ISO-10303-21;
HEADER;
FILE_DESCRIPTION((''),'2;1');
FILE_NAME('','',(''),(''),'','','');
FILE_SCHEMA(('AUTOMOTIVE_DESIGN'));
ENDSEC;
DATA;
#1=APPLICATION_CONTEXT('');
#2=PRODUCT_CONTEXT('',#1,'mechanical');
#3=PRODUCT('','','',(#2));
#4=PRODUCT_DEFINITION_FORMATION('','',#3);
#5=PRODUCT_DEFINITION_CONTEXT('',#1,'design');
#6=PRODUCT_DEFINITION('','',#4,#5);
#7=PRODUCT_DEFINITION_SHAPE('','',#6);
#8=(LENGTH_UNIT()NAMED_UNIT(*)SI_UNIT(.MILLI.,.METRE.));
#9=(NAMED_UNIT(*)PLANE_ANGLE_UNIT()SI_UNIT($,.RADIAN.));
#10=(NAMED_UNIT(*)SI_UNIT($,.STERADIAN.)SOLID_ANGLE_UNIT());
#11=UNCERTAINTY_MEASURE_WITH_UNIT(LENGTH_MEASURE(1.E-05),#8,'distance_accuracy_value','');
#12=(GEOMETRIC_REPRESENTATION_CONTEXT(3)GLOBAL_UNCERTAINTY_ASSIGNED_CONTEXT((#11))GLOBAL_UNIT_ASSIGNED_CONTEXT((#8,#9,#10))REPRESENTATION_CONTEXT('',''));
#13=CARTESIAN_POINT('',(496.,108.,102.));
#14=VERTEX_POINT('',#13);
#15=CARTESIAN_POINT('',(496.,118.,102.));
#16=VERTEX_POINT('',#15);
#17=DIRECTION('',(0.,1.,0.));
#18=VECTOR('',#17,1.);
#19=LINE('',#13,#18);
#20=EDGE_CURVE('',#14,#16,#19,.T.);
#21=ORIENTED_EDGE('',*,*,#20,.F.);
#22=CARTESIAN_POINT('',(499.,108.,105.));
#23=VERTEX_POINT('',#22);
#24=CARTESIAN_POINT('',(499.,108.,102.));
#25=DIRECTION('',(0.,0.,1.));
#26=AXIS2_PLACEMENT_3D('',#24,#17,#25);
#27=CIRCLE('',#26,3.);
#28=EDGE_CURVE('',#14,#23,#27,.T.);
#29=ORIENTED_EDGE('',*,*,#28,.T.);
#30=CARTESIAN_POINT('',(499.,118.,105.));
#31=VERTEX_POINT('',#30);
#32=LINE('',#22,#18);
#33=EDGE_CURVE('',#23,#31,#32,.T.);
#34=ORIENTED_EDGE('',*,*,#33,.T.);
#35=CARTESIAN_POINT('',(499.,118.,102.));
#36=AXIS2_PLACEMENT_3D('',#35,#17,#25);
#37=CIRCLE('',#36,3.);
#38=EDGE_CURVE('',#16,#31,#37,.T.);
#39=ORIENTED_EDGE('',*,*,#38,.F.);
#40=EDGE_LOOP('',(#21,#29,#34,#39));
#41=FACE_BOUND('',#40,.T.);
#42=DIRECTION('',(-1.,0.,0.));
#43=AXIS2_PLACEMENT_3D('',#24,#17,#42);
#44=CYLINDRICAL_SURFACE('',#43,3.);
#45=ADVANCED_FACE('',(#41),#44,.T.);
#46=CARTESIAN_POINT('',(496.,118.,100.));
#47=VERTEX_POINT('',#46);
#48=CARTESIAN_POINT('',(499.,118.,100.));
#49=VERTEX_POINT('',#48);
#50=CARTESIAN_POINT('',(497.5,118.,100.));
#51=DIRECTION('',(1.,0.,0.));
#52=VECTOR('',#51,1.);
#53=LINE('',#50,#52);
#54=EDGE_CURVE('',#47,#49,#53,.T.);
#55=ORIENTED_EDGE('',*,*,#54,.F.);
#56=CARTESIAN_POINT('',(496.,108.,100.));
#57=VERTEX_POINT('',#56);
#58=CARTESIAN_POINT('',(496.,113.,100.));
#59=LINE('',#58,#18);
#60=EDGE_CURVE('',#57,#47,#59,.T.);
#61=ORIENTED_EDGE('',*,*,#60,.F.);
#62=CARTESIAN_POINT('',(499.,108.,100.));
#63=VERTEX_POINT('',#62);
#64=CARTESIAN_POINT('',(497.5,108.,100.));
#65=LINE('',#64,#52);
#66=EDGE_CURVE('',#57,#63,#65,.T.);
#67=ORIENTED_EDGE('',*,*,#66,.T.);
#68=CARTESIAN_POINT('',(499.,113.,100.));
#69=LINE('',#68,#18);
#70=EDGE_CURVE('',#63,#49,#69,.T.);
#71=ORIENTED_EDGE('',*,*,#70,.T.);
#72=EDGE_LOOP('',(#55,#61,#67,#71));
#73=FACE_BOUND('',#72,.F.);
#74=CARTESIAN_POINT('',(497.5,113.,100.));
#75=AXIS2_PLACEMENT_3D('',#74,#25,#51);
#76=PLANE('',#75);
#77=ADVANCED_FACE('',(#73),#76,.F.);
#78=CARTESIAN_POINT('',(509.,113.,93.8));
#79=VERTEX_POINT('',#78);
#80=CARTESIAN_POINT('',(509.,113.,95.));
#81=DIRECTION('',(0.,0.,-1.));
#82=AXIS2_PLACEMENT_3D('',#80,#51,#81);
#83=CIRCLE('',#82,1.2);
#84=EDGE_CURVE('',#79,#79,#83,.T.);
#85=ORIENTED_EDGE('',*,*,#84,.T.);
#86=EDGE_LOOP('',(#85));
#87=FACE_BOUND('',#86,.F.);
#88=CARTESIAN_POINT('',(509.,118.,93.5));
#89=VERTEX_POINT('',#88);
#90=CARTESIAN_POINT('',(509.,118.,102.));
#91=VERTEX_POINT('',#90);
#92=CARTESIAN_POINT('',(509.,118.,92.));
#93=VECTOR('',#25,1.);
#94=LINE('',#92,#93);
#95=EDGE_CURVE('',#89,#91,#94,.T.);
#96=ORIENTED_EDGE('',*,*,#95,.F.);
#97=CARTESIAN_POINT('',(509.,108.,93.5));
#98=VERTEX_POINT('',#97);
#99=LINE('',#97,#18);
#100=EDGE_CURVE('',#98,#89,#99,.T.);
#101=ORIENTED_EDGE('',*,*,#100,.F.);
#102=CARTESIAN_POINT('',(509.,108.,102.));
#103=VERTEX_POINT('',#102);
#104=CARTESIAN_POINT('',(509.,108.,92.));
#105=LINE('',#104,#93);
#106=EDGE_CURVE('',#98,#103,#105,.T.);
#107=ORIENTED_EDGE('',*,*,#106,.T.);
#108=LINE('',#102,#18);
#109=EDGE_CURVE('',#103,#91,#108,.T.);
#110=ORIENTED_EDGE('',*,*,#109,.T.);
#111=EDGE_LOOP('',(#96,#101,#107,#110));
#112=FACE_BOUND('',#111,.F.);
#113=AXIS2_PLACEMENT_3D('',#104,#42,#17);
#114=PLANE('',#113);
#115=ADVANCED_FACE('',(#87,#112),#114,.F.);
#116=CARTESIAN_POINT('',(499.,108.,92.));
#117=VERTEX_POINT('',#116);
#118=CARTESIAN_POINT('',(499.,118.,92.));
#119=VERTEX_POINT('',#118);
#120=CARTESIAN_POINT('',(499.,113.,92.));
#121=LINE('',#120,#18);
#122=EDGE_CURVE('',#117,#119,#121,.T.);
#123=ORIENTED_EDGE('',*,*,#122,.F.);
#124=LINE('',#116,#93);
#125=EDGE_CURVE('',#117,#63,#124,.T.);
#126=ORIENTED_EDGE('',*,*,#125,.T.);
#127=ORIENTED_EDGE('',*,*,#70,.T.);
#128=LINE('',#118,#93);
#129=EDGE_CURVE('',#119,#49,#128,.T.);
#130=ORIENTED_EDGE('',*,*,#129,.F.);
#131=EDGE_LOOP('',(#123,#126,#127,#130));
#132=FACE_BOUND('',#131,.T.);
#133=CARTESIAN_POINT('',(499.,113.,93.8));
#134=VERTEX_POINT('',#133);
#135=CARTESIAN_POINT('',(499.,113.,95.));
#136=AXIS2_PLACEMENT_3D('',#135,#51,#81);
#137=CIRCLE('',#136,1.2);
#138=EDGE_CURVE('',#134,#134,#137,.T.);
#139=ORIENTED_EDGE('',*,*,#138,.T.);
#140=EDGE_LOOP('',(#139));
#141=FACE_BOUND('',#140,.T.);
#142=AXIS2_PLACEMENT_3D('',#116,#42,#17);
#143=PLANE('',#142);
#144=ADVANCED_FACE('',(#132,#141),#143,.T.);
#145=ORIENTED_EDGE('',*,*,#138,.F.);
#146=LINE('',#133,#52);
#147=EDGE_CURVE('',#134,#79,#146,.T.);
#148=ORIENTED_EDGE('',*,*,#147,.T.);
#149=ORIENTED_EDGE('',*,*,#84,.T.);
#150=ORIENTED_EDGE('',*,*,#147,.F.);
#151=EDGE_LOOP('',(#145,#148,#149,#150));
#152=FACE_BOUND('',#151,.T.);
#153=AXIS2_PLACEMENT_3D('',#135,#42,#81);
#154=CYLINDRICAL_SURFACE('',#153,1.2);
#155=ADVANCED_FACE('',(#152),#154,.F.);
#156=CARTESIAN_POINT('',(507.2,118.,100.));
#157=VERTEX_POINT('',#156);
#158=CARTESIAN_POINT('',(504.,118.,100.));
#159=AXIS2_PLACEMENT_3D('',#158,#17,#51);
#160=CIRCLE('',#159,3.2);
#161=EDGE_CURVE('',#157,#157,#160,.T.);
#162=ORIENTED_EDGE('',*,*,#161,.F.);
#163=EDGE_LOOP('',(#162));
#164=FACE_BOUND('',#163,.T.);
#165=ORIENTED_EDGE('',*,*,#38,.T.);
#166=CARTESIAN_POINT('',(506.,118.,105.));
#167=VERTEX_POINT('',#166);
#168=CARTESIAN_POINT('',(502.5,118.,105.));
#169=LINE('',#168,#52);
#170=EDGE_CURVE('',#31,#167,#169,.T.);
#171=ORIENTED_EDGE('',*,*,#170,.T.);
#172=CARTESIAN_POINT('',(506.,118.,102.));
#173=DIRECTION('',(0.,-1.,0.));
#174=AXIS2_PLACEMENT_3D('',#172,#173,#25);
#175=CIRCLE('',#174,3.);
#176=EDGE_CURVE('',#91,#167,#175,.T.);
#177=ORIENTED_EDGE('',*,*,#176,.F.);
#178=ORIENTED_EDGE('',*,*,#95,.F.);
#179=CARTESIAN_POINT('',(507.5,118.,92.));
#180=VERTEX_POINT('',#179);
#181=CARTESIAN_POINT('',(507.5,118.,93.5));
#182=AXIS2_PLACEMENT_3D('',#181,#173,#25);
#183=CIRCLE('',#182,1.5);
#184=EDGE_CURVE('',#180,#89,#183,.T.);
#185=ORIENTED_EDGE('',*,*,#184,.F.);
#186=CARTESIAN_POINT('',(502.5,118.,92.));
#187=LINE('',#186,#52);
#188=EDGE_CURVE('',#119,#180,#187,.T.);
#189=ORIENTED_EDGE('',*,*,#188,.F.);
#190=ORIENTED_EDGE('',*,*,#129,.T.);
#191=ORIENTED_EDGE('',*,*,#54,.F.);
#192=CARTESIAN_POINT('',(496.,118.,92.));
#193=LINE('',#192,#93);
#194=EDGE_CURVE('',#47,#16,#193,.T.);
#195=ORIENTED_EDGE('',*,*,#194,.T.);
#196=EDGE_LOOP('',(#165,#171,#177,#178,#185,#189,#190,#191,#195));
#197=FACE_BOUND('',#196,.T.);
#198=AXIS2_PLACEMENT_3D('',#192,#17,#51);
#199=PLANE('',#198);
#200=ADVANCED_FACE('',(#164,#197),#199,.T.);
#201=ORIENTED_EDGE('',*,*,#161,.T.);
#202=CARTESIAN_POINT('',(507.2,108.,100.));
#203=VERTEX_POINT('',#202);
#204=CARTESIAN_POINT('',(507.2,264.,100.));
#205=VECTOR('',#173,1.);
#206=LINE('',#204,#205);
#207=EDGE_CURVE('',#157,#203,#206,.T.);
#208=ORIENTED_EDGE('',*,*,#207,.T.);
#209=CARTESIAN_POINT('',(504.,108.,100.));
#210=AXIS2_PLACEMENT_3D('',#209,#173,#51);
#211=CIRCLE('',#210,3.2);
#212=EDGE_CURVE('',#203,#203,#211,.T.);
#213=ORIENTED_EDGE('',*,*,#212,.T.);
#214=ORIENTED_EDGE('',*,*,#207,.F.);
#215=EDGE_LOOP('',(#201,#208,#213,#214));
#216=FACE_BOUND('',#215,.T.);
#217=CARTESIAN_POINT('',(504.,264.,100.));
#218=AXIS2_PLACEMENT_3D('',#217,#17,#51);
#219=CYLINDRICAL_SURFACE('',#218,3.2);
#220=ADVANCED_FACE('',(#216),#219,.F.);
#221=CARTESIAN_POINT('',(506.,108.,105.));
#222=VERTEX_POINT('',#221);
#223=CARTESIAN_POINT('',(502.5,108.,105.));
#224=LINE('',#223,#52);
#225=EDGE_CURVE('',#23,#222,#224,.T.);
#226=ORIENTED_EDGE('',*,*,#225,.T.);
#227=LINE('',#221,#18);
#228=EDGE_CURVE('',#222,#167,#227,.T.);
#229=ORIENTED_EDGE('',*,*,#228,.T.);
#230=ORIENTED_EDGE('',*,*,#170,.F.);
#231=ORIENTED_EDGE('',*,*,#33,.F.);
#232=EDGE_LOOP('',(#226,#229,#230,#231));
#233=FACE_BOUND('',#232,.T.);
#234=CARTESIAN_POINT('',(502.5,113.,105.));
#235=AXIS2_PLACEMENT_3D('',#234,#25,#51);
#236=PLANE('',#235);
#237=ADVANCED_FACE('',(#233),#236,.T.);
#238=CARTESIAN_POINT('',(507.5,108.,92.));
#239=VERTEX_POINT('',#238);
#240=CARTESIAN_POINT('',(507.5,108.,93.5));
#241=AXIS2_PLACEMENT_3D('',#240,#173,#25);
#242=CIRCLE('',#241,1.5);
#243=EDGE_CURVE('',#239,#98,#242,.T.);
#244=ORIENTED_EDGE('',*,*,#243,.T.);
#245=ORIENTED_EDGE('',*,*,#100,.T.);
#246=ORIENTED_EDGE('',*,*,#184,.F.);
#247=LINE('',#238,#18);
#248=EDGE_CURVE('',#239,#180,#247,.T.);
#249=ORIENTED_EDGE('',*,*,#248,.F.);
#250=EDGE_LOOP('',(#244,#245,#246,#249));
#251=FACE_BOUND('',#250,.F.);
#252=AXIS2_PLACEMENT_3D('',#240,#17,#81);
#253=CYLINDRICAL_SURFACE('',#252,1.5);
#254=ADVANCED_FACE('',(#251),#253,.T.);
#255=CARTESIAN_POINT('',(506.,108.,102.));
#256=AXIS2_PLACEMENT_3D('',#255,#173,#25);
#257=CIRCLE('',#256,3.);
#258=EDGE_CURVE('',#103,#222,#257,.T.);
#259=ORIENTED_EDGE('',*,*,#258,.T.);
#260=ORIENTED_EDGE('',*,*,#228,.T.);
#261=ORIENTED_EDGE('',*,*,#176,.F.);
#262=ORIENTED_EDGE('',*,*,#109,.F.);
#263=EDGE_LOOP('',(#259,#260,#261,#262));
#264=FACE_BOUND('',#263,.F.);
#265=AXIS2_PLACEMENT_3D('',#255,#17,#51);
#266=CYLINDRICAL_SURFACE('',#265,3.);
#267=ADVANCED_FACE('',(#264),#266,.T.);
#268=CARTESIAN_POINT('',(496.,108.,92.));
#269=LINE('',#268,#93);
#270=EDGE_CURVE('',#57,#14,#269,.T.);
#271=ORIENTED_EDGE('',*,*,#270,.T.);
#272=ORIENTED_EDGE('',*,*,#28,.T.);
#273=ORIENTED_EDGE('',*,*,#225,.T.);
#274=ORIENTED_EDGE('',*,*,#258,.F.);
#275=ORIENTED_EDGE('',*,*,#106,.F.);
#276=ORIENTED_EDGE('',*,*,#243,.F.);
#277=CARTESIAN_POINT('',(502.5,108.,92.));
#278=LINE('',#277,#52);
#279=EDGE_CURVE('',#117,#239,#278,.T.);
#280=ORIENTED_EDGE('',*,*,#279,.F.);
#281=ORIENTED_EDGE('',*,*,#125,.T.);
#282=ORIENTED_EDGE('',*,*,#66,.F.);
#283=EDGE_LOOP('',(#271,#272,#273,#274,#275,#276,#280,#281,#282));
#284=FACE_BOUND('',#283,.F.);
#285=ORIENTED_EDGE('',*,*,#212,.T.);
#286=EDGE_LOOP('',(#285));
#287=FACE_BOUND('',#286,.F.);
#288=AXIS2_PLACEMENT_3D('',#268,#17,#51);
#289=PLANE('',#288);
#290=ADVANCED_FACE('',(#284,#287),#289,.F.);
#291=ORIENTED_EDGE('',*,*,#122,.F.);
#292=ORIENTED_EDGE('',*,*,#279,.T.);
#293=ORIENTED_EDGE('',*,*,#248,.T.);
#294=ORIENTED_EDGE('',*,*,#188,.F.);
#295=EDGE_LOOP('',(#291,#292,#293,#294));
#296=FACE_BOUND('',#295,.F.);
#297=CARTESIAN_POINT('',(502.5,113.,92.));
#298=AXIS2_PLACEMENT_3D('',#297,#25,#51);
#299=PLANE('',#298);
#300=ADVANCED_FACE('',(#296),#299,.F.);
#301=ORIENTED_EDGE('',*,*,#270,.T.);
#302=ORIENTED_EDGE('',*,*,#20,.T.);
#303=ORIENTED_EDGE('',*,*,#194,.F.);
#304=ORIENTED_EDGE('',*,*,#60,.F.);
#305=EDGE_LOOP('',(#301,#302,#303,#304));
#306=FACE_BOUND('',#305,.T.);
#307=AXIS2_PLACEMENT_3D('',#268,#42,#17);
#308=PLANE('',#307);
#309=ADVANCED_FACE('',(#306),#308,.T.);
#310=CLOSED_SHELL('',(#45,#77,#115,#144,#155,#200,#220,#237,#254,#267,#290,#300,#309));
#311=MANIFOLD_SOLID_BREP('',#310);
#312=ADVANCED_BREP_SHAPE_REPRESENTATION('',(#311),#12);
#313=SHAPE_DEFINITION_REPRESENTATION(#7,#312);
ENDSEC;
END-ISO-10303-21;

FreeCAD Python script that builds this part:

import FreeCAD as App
import Part
import Sketcher
Q = App.Units.Quantity


def edges_at(feature, points):
    """Names of the edges that pass closest to the given points."""
    edges = feature.Shape.Edges
    near = lambda p: min(range(len(edges)), key=lambda i: edges[i].distToShape(Part.Vertex(*p))[0])
    return sorted({f"Edge{near(p) + 1}" for p in points})


def add_polygon(sketch, points):
    """Adds a closed chain of lines whose ends are joined by coincident constraints."""
    first, n = sketch.GeometryCount, len(points)
    for a, b in zip(points, points[1:] + points[:1]):
        sketch.addGeometry(Part.LineSegment(App.Vector(*a, 0), App.Vector(*b, 0)), False)
    for i in range(n):
        sketch.addConstraint(Sketcher.Constraint("Coincident", first + i, 2, first + (i + 1) % n, 1))

doc = App.newDocument("Part")
body = doc.addObject("PartDesign::Body", "Body")

sketch1 = body.newObject("Sketcher::SketchObject", "Sketch")
sketch1.AttachmentSupport = (doc.getObject("XY_Plane"), [""])
sketch1.MapMode = "FlatFace"
sketch1.addGeometry(Part.Circle(App.Vector(0, 0, 0), App.Vector(0, 0, 1), 3.2), False)
sketch1.addConstraint(Sketcher.Constraint("Coincident", 0, 3, -1, 1))
sketch1.addConstraint(Sketcher.Constraint("Diameter", 0, Q("6.4 mm")))
pad1 = body.newObject("PartDesign::Pad", "Pad")
pad1.Profile = sketch1
pad1.Length = 156
body2 = doc.addObject("PartDesign::Body", "Body001")
doc.recompute()

body.Placement = App.Placement(App.Vector(0, 0, 0), App.Rotation(App.Vector(1, 0, 0), 90))
boolean = body2.newObject("PartDesign::Boolean", "Boolean")
boolean.Type = "Fuse"
boolean.addObjects([body])
body3 = doc.addObject("PartDesign::Body", "Body002")
doc.recompute()

body2.Placement = App.Placement(App.Vector(504, 118, 100), App.Rotation(App.Vector(0, 0, 1), 0))
boolean2 = body3.newObject("PartDesign::Boolean", "Boolean001")
boolean2.Type = "Fuse"
boolean2.addObjects([body2])
body4 = doc.addObject("PartDesign::Body", "Body003")

sketch2 = body4.newObject("Sketcher::SketchObject", "Sketch001")
sketch2.AttachmentSupport = (doc.getObject("XY_Plane003"), [""])
sketch2.MapMode = "FlatFace"
sketch2.addGeometry(Part.Circle(App.Vector(0, 0, 0), App.Vector(0, 0, 1), 1.2), False)
sketch2.addConstraint(Sketcher.Constraint("Coincident", 0, 3, -1, 1))
sketch2.addConstraint(Sketcher.Constraint("Diameter", 0, Q("2.4 mm")))
pad2 = body4.newObject("PartDesign::Pad", "Pad001")
pad2.Profile = sketch2
pad2.Length = 10
body5 = doc.addObject("PartDesign::Body", "Body004")
doc.recompute()

body4.Placement = App.Placement(App.Vector(0, 0, 0), App.Rotation(App.Vector(0, 1, 0), 90))
boolean3 = body5.newObject("PartDesign::Boolean", "Boolean002")
boolean3.Type = "Fuse"
boolean3.addObjects([body4])
body6 = doc.addObject("PartDesign::Body", "Body005")
doc.recompute()

body5.Placement = App.Placement(App.Vector(499, -33, 95), App.Rotation(App.Vector(0, 0, 1), 0))
boolean4 = body6.newObject("PartDesign::Boolean", "Boolean003")
boolean4.Type = "Fuse"
boolean4.addObjects([body5])
body7 = doc.addObject("PartDesign::Body", "Body006")

sketch3 = body7.newObject("Sketcher::SketchObject", "Sketch002")
sketch3.AttachmentSupport = (doc.getObject("XY_Plane006"), [""])
sketch3.MapMode = "FlatFace"
sketch3.AttachmentOffset = App.Placement(App.Vector(0, 0, 92), App.Rotation())
add_polygon(sketch3, [(499, -28), (499, -38), (502, -38), (502, -28)])
sketch3.addConstraint(Sketcher.Constraint("Vertical", 0))
sketch3.addConstraint(Sketcher.Constraint("Horizontal", 1))
sketch3.addConstraint(Sketcher.Constraint("Vertical", 2))
sketch3.addConstraint(Sketcher.Constraint("Horizontal", 3))
sketch3.addConstraint(Sketcher.Constraint("DistanceX", 1, 1, 1, 2, Q("3 mm")))
sketch3.addConstraint(Sketcher.Constraint("DistanceY", 0, 2, 0, 1, Q("10 mm")))
sketch3.addConstraint(Sketcher.Constraint("DistanceX", -1, 1, 0, 2, Q("499 mm")))
sketch3.addConstraint(Sketcher.Constraint("DistanceY", 0, 2, -1, 1, Q("38 mm")))
pad3 = body7.newObject("PartDesign::Pad", "Pad002")
pad3.Profile = sketch3
pad3.Length = 8
body8 = doc.addObject("PartDesign::Body", "Body007")

sketch4 = body8.newObject("Sketcher::SketchObject", "Sketch003")
sketch4.AttachmentSupport = (doc.getObject("XY_Plane007"), [""])
sketch4.MapMode = "FlatFace"
sketch4.AttachmentOffset = App.Placement(App.Vector(0, 0, 92), App.Rotation())
add_polygon(sketch4, [(499, -28), (499, -38), (512, -38), (512, -28)])
sketch4.addConstraint(Sketcher.Constraint("Vertical", 0))
sketch4.addConstraint(Sketcher.Constraint("Horizontal", 1))
sketch4.addConstraint(Sketcher.Constraint("Vertical", 2))
sketch4.addConstraint(Sketcher.Constraint("Horizontal", 3))
sketch4.addConstraint(Sketcher.Constraint("DistanceX", 1, 1, 1, 2, Q("13 mm")))
sketch4.addConstraint(Sketcher.Constraint("DistanceY", 0, 2, 0, 1, Q("10 mm")))
sketch4.addConstraint(Sketcher.Constraint("DistanceX", -1, 1, 0, 2, Q("499 mm")))
sketch4.addConstraint(Sketcher.Constraint("DistanceY", 0, 2, -1, 1, Q("38 mm")))
pad4 = body8.newObject("PartDesign::Pad", "Pad003")
pad4.Profile = sketch4
pad4.Length = 13
doc.recompute()

fillet = body8.newObject("PartDesign::Fillet", "Fillet")
fillet.Base = (pad4, edges_at(pad4, [(499, -33, 105), (512, -33, 105)]))
fillet.Radius = 3
doc.recompute()

fillet2 = body8.newObject("PartDesign::Fillet", "Fillet001")
fillet2.Base = (fillet, edges_at(fillet, [(512, -33, 92)]))
fillet2.Radius = 1.5
doc.recompute()

boolean5 = body8.newObject("PartDesign::Boolean", "Boolean004")
boolean5.Type = "Cut"
boolean5.addObjects([body7])
body9 = doc.addObject("PartDesign::Body", "Body008")
doc.recompute()

body8.Placement = App.Placement(App.Vector(-3, 0, 0), App.Rotation(App.Vector(0, 0, 1), 0))
boolean6 = body9.newObject("PartDesign::Boolean", "Boolean005")
boolean6.Type = "Fuse"
boolean6.addObjects([body8])
doc.recompute()

boolean7 = body9.newObject("PartDesign::Boolean", "Boolean006")
boolean7.Type = "Cut"
boolean7.addObjects([body6])
doc.recompute()

boolean8 = body9.newObject("PartDesign::Boolean", "Boolean007")
boolean8.Type = "Cut"
boolean8.addObjects([body3])
body10 = doc.addObject("PartDesign::Body", "Body009")
doc.recompute()

body9.Placement = App.Placement(App.Vector(0, 146, 0), App.Rotation(App.Vector(0, 0, 1), 0))
boolean9 = body10.newObject("PartDesign::Boolean", "Boolean008")
boolean9.Type = "Fuse"
boolean9.addObjects([body9])

doc.recompute()
